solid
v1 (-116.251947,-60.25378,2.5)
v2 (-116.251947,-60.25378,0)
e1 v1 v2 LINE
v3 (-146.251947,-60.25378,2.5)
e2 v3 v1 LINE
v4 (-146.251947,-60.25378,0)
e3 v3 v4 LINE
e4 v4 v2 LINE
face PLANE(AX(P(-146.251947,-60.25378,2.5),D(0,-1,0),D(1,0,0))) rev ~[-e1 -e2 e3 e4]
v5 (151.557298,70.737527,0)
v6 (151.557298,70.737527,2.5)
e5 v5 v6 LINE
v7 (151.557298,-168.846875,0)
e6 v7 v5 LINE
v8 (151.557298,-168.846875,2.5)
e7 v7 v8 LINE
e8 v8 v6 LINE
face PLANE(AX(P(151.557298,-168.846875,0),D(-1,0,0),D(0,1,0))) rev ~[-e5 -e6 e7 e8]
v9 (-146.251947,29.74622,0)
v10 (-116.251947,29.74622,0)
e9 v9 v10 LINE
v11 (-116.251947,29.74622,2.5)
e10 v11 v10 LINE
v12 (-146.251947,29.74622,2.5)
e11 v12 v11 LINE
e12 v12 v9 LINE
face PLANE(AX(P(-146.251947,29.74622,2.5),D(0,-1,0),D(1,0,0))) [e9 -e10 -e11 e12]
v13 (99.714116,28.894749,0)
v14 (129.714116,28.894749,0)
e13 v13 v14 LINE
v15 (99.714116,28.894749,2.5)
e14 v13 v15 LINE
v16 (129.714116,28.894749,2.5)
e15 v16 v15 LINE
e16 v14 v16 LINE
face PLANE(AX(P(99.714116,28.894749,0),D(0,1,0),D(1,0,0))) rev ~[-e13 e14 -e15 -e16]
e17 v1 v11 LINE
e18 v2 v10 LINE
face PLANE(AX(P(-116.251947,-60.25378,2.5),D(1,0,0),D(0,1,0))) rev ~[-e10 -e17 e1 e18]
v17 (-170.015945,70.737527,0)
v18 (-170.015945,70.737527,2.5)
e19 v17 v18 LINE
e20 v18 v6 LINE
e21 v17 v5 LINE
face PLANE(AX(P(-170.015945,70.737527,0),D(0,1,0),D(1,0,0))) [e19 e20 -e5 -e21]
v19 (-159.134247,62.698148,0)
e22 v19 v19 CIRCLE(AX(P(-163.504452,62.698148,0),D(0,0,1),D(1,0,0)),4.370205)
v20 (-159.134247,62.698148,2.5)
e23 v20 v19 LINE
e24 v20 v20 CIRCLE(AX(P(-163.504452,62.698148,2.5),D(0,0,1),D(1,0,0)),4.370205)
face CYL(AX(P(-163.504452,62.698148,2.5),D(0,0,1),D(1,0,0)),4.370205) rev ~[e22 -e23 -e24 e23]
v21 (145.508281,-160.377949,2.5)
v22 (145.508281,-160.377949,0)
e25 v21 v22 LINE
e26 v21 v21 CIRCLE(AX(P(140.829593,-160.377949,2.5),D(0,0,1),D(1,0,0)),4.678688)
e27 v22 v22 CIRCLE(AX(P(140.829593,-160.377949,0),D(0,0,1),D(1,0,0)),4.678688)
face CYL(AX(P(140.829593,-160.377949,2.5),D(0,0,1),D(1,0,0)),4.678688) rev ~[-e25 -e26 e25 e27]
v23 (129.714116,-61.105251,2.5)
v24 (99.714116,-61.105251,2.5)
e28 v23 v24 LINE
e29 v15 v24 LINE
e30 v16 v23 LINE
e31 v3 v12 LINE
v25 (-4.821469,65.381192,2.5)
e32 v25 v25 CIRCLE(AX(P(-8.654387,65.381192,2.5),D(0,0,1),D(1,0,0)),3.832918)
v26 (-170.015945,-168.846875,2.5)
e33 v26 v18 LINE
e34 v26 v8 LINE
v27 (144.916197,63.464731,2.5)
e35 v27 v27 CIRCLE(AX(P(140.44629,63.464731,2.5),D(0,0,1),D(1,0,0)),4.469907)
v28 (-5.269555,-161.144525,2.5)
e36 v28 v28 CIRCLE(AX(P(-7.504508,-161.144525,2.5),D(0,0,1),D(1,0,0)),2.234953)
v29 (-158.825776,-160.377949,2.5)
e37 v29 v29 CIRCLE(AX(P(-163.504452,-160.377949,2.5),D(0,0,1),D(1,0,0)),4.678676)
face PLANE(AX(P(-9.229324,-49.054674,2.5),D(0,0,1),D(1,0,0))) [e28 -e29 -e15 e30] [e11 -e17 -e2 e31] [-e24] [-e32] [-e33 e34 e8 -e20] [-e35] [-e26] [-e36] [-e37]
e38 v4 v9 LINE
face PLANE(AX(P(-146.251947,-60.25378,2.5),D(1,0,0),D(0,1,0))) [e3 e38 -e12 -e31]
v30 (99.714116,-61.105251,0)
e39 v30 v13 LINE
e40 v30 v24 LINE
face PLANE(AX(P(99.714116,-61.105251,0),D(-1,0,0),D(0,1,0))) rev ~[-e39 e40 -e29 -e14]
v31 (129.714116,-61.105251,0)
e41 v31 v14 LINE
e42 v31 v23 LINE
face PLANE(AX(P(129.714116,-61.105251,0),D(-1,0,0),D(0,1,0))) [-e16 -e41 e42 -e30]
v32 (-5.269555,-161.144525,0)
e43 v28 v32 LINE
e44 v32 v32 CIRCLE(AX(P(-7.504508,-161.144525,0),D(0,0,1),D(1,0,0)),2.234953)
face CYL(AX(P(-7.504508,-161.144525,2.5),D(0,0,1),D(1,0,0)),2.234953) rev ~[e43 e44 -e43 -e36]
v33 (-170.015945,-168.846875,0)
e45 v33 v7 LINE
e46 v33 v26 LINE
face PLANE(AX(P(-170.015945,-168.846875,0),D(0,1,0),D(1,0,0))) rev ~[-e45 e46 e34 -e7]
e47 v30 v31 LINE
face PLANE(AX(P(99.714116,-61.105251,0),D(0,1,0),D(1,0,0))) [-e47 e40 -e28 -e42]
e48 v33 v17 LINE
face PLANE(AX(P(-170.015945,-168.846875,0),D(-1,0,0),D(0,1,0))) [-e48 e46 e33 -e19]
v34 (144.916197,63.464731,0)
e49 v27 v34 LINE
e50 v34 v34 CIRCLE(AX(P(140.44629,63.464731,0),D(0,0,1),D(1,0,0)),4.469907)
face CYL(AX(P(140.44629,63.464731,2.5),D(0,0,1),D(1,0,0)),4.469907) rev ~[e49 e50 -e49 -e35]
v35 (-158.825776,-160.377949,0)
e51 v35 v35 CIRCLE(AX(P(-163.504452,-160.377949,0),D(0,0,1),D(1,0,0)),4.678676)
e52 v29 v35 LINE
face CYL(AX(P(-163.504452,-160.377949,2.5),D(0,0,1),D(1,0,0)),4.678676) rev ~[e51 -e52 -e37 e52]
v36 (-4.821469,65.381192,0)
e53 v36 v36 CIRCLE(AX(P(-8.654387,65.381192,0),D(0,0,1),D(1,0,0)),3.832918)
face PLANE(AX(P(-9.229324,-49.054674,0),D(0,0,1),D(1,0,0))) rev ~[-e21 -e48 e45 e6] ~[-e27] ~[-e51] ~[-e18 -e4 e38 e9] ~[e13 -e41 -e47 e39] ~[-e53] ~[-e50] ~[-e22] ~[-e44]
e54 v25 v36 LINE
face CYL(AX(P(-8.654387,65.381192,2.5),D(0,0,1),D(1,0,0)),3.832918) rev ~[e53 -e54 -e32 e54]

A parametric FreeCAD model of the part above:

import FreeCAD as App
import Part
import Sketcher

doc = App.newDocument("Part")
body = doc.addObject("PartDesign::Body", "Body")

sketch1 = doc.addObject("Sketcher::SketchObject", "Sketch")
body.addObject(sketch1)
sketch1.AttachmentSupport = (doc.XY_Plane, [""])
sketch1.MapMode = "FlatFace"
sketch1.addGeometry(Part.LineSegment(App.Vector(-170, 71, 0), App.Vector(-170, -169, 0)), False)
sketch1.addGeometry(Part.LineSegment(App.Vector(-170, -169, 0), App.Vector(152, -169, 0)), False)
sketch1.addGeometry(Part.LineSegment(App.Vector(152, -169, 0), App.Vector(152, 71, 0)), False)
sketch1.addGeometry(Part.LineSegment(App.Vector(152, 71, 0), App.Vector(-170, 71, 0)), False)
sketch1.addConstraint(Sketcher.Constraint("Coincident", 0, 2, 1, 1))
sketch1.addConstraint(Sketcher.Constraint("Coincident", 1, 2, 2, 1))
sketch1.addConstraint(Sketcher.Constraint("Coincident", 2, 2, 3, 1))
sketch1.addConstraint(Sketcher.Constraint("Coincident", 3, 2, 0, 1))
sketch1.addConstraint(Sketcher.Constraint("Vertical", 0))
sketch1.addConstraint(Sketcher.Constraint("Horizontal", 1))
sketch1.addConstraint(Sketcher.Constraint("Vertical", 2))
sketch1.addConstraint(Sketcher.Constraint("Horizontal", 3))
sketch1.addConstraint(Sketcher.Constraint("DistanceY", 0, 2, 0, 1, 239.584401))
sketch1.addConstraint(Sketcher.Constraint("DistanceX", 1, 1, 1, 2, 321.573243))
sketch1.addConstraint(Sketcher.Constraint("DistanceX", 0, 2, -1, 1, 170.015945))
sketch1.addConstraint(Sketcher.Constraint("DistanceY", 0, 2, -1, 1, 168.846875))
pad1 = doc.addObject("PartDesign::Pad", "Pad")
body.addObject(pad1)
pad1.Profile = sketch1
pad1.Length = 2.5

sketch2 = doc.addObject("Sketcher::SketchObject", "Sketch001")
body.addObject(sketch2)
sketch2.AttachmentSupport = (doc.XY_Plane, [""])
sketch2.MapMode = "FlatFace"
sketch2.AttachmentOffset = App.Placement(App.Vector(0, 0, 2.5), App.Rotation())
sketch2.addGeometry(Part.LineSegment(App.Vector(-146, 30, 0), App.Vector(-146, -60, 0)), False)
sketch2.addGeometry(Part.LineSegment(App.Vector(-146, -60, 0), App.Vector(-116, -60, 0)), False)
sketch2.addGeometry(Part.LineSegment(App.Vector(-116, -60, 0), App.Vector(-116, 30, 0)), False)
sketch2.addGeometry(Part.LineSegment(App.Vector(-116, 30, 0), App.Vector(-146, 30, 0)), False)
sketch2.addConstraint(Sketcher.Constraint("Coincident", 0, 2, 1, 1))
sketch2.addConstraint(Sketcher.Constraint("Coincident", 1, 2, 2, 1))
sketch2.addConstraint(Sketcher.Constraint("Coincident", 2, 2, 3, 1))
sketch2.addConstraint(Sketcher.Constraint("Coincident", 3, 2, 0, 1))
sketch2.addConstraint(Sketcher.Constraint("Vertical", 0))
sketch2.addConstraint(Sketcher.Constraint("Horizontal", 1))
sketch2.addConstraint(Sketcher.Constraint("Vertical", 2))
sketch2.addConstraint(Sketcher.Constraint("Horizontal", 3))
sketch2.addConstraint(Sketcher.Constraint("DistanceX", 1, 1, 1, 2, 30.0))
sketch2.addConstraint(Sketcher.Constraint("DistanceY", 0, 2, 0, 1, 90.0))
sketch2.addConstraint(Sketcher.Constraint("DistanceY", 0, 2, -1, 1, 60.25378))
sketch2.addConstraint(Sketcher.Constraint("DistanceX", 0, 2, -1, 1, 146.251947))
pocket1 = doc.addObject("PartDesign::Pocket", "Pocket")
body.addObject(pocket1)
pocket1.Profile = sketch2
pocket1.Length = 30

sketch3 = doc.addObject("Sketcher::SketchObject", "Sketch002")
body.addObject(sketch3)
sketch3.AttachmentSupport = (doc.XY_Plane, [""])
sketch3.MapMode = "FlatFace"
sketch3.addGeometry(Part.LineSegment(App.Vector(100, 29, 0), App.Vector(100, -61, 0)), False)
sketch3.addGeometry(Part.LineSegment(App.Vector(100, -61, 0), App.Vector(130, -61, 0)), False)
sketch3.addGeometry(Part.LineSegment(App.Vector(130, -61, 0), App.Vector(130, 29, 0)), False)
sketch3.addGeometry(Part.LineSegment(App.Vector(130, 29, 0), App.Vector(100, 29, 0)), False)
sketch3.addConstraint(Sketcher.Constraint("Coincident", 0, 2, 1, 1))
sketch3.addConstraint(Sketcher.Constraint("Coincident", 1, 2, 2, 1))
sketch3.addConstraint(Sketcher.Constraint("Coincident", 2, 2, 3, 1))
sketch3.addConstraint(Sketcher.Constraint("Coincident", 3, 2, 0, 1))
sketch3.addConstraint(Sketcher.Constraint("Vertical", 0))
sketch3.addConstraint(Sketcher.Constraint("Horizontal", 1))
sketch3.addConstraint(Sketcher.Constraint("Vertical", 2))
sketch3.addConstraint(Sketcher.Constraint("Horizontal", 3))
sketch3.addConstraint(Sketcher.Constraint("DistanceX", 1, 1, 1, 2, 30.0))
sketch3.addConstraint(Sketcher.Constraint("DistanceY", 0, 2, 0, 1, 90.0))
sketch3.addConstraint(Sketcher.Constraint("DistanceY", 0, 2, -1, 1, 61.105251))
sketch3.addConstraint(Sketcher.Constraint("DistanceX", -1, 1, 0, 2, 99.714116))
pocket2 = doc.addObject("PartDesign::Pocket", "Pocket001")
body.addObject(pocket2)
pocket2.Profile = sketch3
pocket2.Length = 30
pocket2.Reversed = True

sketch4 = doc.addObject("Sketcher::SketchObject", "Sketch003")
body.addObject(sketch4)
sketch4.AttachmentSupport = (doc.XY_Plane, [""])
sketch4.MapMode = "FlatFace"
sketch4.AttachmentOffset = App.Placement(App.Vector(0, 0, 2.5), App.Rotation())
sketch4.addGeometry(Part.Circle(App.Vector(-163.5, 62.7, 0), App.Vector(0, 0, 1), 4.4), False)
sketch4.addGeometry(Part.Circle(App.Vector(140.4, 63.5, 0), App.Vector(0, 0, 1), 4.5), False)
sketch4.addGeometry(Part.Circle(App.Vector(-8.7, 65.4, 0), App.Vector(0, 0, 1), 3.8), False)
sketch4.addGeometry(Part.Circle(App.Vector(-7.5, -161.1, 0), App.Vector(0, 0, 1), 2.2), False)
sketch4.addGeometry(Part.Circle(App.Vector(-163.5, -160.4, 0), App.Vector(0, 0, 1), 4.7), False)
sketch4.addGeometry(Part.Circle(App.Vector(140.8, -160.4, 0), App.Vector(0, 0, 1), 4.7), False)
sketch4.addConstraint(Sketcher.Constraint("Horizontal", 4, 3, 5, 3))
sketch4.addConstraint(Sketcher.Constraint("Vertical", 0, 3, 4, 3))
sketch4.addConstraint(Sketcher.Constraint("Diameter", 0, 8.74041))
sketch4.addConstraint(Sketcher.Constraint("Diameter", 1, 8.939814))
sketch4.addConstraint(Sketcher.Constraint("Diameter", 2, 7.665836))
sketch4.addConstraint(Sketcher.Constraint("Diameter", 3, 4.469906))
sketch4.addConstraint(Sketcher.Constraint("Diameter", 4, 9.357352))
sketch4.addConstraint(Sketcher.Constraint("Diameter", 5, 9.357376))
sketch4.addConstraint(Sketcher.Constraint("DistanceX", 3, 3, 1, 3, 147.950798))
sketch4.addConstraint(Sketcher.Constraint("DistanceX", 3, 3, 5, 3, 148.334101))
sketch4.addConstraint(Sketcher.Constraint("DistanceX", 0, 3, -1, 1, 163.504452))
sketch4.addConstraint(Sketcher.Constraint("DistanceY", -1, 1, 0, 3, 62.698148))
sketch4.addConstraint(Sketcher.Constraint("DistanceX", -1, 1, 1, 3, 140.44629))
sketch4.addConstraint(Sketcher.Constraint("DistanceY", -1, 1, 1, 3, 63.464731))
sketch4.addConstraint(Sketcher.Constraint("DistanceY", -1, 1, 2, 3, 65.381192))
sketch4.addConstraint(Sketcher.Constraint("DistanceY", 4, 3, -1, 1, 160.377949))
sketch4.addConstraint(Sketcher.Constraint("DistanceX", 2, 3, 3, 3, 1.149879))
sketch4.addConstraint(Sketcher.Constraint("DistanceY", 3, 3, -1, 1, 161.144525))
pocket3 = doc.addObject("PartDesign::Pocket", "Pocket002")
body.addObject(pocket3)
pocket3.Profile = sketch4
pocket3.Length = 30

doc.recompute()
